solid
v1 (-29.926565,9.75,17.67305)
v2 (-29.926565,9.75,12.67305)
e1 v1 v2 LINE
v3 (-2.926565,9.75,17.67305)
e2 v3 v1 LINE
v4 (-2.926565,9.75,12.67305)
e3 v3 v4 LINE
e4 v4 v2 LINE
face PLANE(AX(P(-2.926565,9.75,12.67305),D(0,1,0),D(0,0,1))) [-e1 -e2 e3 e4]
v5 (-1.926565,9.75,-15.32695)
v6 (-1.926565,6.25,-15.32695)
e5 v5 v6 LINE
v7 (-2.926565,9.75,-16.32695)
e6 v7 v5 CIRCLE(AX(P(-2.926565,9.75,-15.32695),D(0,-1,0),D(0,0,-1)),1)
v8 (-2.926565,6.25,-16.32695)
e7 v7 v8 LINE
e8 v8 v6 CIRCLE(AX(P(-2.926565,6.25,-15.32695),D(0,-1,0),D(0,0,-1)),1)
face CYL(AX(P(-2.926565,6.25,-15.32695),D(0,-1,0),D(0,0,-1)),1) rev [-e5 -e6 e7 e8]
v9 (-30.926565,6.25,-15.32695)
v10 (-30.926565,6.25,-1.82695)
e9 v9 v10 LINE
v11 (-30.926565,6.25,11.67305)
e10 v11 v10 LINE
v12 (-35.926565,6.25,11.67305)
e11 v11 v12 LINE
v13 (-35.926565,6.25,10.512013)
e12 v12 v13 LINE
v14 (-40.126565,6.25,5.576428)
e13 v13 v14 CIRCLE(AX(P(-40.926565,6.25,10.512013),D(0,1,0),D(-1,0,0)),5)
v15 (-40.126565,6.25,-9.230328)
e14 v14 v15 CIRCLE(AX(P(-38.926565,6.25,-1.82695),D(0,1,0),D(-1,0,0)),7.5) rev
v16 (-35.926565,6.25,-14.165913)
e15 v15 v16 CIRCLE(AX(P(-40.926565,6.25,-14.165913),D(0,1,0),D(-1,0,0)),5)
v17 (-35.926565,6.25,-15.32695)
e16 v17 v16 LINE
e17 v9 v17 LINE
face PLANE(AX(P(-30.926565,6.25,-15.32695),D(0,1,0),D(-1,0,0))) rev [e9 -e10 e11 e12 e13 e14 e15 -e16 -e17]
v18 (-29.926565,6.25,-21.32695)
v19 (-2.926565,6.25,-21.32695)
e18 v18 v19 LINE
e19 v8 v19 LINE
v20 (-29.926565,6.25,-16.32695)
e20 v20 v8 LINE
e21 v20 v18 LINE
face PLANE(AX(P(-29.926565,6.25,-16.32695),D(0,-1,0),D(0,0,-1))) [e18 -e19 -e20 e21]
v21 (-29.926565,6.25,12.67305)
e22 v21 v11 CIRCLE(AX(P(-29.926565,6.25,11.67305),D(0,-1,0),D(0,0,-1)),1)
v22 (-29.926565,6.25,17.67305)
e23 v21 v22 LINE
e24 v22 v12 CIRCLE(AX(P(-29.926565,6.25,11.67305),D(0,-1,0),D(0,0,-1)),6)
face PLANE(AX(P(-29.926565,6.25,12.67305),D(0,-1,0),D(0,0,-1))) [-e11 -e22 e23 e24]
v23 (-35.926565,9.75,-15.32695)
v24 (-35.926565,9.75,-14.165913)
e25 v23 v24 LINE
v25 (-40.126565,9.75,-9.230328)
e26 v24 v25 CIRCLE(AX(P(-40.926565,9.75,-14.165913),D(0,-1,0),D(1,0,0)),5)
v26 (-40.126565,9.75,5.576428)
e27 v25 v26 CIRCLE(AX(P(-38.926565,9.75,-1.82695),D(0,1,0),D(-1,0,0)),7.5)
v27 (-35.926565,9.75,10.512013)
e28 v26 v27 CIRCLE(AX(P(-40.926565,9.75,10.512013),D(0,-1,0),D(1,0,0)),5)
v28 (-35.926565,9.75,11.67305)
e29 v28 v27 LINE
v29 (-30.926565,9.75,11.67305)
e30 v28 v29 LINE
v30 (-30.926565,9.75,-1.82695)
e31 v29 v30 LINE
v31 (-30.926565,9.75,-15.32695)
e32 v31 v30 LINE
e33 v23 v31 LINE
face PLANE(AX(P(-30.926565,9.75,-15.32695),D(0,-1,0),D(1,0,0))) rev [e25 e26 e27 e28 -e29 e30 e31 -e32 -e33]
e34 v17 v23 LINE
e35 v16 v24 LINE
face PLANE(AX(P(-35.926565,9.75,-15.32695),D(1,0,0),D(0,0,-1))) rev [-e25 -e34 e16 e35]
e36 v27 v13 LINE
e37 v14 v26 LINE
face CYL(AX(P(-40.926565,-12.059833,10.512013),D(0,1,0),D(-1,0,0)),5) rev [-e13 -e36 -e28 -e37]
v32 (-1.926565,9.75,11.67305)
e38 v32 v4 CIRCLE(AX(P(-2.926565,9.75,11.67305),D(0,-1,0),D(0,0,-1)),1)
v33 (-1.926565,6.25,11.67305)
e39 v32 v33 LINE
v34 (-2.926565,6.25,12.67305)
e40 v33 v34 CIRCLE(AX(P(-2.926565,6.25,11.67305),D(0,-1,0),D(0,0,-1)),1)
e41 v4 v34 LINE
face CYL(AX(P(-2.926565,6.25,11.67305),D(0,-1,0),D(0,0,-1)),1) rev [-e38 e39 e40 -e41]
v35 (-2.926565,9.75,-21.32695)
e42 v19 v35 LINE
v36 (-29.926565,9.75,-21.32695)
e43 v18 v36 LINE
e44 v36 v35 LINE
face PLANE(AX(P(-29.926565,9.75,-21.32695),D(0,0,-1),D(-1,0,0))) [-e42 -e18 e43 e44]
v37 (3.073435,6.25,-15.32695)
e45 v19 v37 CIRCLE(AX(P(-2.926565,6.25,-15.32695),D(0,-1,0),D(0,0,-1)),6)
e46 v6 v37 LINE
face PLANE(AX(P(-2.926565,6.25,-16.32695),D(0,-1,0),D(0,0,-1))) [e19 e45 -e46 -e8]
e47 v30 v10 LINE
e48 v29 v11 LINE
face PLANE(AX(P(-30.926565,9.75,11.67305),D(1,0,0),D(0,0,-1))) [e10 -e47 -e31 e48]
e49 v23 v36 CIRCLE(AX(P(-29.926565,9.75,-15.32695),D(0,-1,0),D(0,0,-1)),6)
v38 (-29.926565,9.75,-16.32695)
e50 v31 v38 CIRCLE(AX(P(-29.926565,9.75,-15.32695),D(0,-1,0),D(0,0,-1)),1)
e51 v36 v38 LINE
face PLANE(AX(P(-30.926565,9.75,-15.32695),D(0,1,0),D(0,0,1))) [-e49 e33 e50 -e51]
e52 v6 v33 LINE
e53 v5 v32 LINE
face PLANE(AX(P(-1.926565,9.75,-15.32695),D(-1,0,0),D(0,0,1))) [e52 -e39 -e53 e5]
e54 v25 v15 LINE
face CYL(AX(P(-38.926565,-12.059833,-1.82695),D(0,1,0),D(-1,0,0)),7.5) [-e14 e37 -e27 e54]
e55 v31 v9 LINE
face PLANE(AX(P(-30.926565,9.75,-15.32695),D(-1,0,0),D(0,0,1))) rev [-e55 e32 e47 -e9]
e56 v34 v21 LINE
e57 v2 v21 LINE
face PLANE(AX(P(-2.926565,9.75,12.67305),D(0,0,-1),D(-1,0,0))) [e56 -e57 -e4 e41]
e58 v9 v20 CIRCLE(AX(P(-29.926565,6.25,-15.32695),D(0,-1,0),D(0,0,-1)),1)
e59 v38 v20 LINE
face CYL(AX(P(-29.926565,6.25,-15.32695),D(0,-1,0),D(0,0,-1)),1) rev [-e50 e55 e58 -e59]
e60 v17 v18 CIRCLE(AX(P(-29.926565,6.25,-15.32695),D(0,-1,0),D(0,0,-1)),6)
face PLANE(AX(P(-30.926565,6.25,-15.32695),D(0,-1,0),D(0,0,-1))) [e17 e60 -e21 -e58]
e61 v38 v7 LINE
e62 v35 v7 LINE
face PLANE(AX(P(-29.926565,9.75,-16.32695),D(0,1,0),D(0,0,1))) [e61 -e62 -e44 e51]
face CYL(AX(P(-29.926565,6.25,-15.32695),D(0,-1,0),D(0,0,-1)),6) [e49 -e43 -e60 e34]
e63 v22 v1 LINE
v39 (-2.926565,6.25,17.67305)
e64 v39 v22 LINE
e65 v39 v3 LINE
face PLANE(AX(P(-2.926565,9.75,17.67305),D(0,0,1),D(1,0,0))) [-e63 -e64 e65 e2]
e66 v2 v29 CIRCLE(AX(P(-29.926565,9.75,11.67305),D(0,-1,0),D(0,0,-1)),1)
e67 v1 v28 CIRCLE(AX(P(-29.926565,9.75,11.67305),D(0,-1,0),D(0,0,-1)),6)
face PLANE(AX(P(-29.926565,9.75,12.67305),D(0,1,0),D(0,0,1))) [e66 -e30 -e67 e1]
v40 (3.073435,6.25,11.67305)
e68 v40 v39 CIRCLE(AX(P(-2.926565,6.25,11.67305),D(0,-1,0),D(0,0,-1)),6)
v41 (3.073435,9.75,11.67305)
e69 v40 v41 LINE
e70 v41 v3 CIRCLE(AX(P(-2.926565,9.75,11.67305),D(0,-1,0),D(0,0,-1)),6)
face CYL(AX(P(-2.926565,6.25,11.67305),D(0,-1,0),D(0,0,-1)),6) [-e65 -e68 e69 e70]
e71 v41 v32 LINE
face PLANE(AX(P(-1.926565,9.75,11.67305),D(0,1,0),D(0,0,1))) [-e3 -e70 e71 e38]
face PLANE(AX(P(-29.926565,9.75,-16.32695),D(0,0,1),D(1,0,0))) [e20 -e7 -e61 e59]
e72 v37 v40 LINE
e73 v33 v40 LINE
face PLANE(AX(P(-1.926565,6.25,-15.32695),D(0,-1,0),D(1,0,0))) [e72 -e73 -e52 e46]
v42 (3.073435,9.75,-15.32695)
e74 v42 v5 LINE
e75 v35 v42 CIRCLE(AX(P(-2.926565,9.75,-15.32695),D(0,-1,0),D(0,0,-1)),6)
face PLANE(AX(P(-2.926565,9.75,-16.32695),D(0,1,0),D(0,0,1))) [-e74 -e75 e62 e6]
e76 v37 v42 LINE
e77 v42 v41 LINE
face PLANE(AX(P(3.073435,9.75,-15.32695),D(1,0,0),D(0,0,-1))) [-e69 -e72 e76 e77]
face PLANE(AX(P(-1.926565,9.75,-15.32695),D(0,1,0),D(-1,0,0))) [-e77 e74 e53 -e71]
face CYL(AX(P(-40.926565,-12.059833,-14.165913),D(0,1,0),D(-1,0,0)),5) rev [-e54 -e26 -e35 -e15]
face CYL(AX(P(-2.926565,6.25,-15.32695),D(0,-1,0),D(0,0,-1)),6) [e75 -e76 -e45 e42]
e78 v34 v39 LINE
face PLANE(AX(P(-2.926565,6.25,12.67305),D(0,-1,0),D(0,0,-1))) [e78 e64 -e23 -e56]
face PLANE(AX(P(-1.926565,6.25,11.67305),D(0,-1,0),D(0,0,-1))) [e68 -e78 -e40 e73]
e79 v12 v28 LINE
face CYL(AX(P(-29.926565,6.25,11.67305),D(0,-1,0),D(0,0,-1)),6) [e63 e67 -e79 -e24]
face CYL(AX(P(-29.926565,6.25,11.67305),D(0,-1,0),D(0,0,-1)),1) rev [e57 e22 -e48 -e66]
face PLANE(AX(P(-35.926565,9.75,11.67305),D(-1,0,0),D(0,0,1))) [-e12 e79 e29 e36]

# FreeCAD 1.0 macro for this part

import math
import FreeCAD as App
import Part
import Sketcher

V = App.Vector
Q = App.Units.Quantity


def edges_at(feature, points):
    """Names of the edges that pass closest to the given points."""
    edges = feature.Shape.Edges
    near = lambda p: min(range(len(edges)), key=lambda i: edges[i].distToShape(Part.Vertex(*p))[0])
    return sorted({f"Edge{near(p) + 1}" for p in points})


def add_polygon(sketch, points):
    """Adds a closed chain of lines whose ends are joined by coincident constraints."""
    first, n = sketch.GeometryCount, len(points)
    for a, b in zip(points, points[1:] + points[:1]):
        sketch.addGeometry(Part.LineSegment(App.Vector(*a, 0), App.Vector(*b, 0)), False)
    for i in range(n):
        sketch.addConstraint(Sketcher.Constraint("Coincident", first + i, 2, first + (i + 1) % n, 1))

doc = App.newDocument("Part")
body = doc.addObject("PartDesign::Body", "Body")

# Sketch on XY plane
sketch1 = doc.addObject("Sketcher::SketchObject", "Sketch")
body.addObject(sketch1)
sketch1.AttachmentSupport = (doc.XY_Plane, [""])
sketch1.MapMode = "FlatFace"
sketch1.AttachmentOffset = App.Placement(V(0, 0, -1.82695), App.Rotation())
add_polygon(sketch1, [(-35.9, 6.2), (-35.9, 9.8), (-30.9, 9.8), (-30.9, 6.2)])  # lines 0-3
sketch1.addConstraint([
    Sketcher.Constraint("Vertical", 0),
    Sketcher.Constraint("Horizontal", 1),
    Sketcher.Constraint("Vertical", 2),
    Sketcher.Constraint("Horizontal", 3),
    Sketcher.Constraint("DistanceX", 1, 1, 1, 2, Q("5 mm")),
    Sketcher.Constraint("DistanceY", 0, 1, 0, 2, Q("3.5 mm")),
    Sketcher.Constraint("DistanceY", -1, 1, 0, 2, Q("9.75 mm")),
    Sketcher.Constraint("DistanceX", 0, 2, -1, 1, Q("35.926565 mm")),
])

# Sketch on XZ plane
sketch2 = doc.addObject("Sketcher::SketchObject", "Sketch001")
body.addObject(sketch2)
sketch2.AttachmentSupport = (doc.XZ_Plane, [""])
sketch2.MapMode = "FlatFace"
sketch2.AttachmentOffset = App.Placement(V(0, 0, -6.25), App.Rotation())
sketch2.addGeometry([
    Part.LineSegment(V(-30.9, -15.3, 0), V(-30.9, 11.7, 0)),  # 0
    Part.ArcOfCircle(Part.Circle(V(-29.9, 11.7, 0), V(0, 0, 1), 1), math.radians(90), math.radians(180)),  # 1
    Part.LineSegment(V(-29.9, 12.7, 0), V(-2.9, 12.7, 0)),  # 2
    Part.ArcOfCircle(Part.Circle(V(-2.9, 11.7, 0), V(0, 0, 1), 1), math.radians(0), math.radians(90)),  # 3
    Part.LineSegment(V(-1.9, 11.7, 0), V(-1.9, -15.3, 0)),  # 4
    Part.ArcOfCircle(Part.Circle(V(-2.9, -15.3, 0), V(0, 0, 1), 1), math.radians(-90), math.radians(0)),  # 5
    Part.LineSegment(V(-2.9, -16.3, 0), V(-29.9, -16.3, 0)),  # 6
    Part.ArcOfCircle(Part.Circle(V(-29.9, -15.3, 0), V(0, 0, 1), 1), math.radians(-180), math.radians(-90)),  # 7
], False)
sketch2.addConstraint([
    Sketcher.Constraint("Tangent", 0, 2, 1, 2),
    Sketcher.Constraint("Tangent", 1, 1, 2, 1),
    Sketcher.Constraint("Tangent", 2, 2, 3, 2),
    Sketcher.Constraint("Tangent", 3, 1, 4, 1),
    Sketcher.Constraint("Tangent", 4, 2, 5, 2),
    Sketcher.Constraint("Tangent", 5, 1, 6, 1),
    Sketcher.Constraint("Tangent", 6, 2, 7, 2),
    Sketcher.Constraint("Tangent", 7, 1, 0, 1),
    Sketcher.Constraint("Vertical", 0),
    Sketcher.Constraint("Horizontal", 2),
    Sketcher.Constraint("Vertical", 4),
    Sketcher.Constraint("Horizontal", 6),
    Sketcher.Constraint("Equal", 1, 3),
    Sketcher.Constraint("Equal", 3, 5),
    Sketcher.Constraint("Equal", 5, 7),
    Sketcher.Constraint("Equal", 6, 0),
    Sketcher.Constraint("Radius", 1, Q("1 mm")),
    Sketcher.Constraint("DistanceX", 2, 1, 2, 2, Q("27 mm")),
    Sketcher.Constraint("DistanceY", -1, 1, 1, 3, Q("11.67305 mm")),
    Sketcher.Constraint("DistanceX", 1, 3, -1, 1, Q("29.926565 mm")),
])
doc.recompute()

additivepipe = doc.addObject("PartDesign::AdditivePipe", "AdditivePipe")
body.addObject(additivepipe)
additivepipe.Profile = sketch1
additivepipe.Spine = (sketch2, ["Edge1", "Edge2", "Edge3", "Edge4", "Edge5", "Edge6", "Edge7", "Edge8"])

# Sketch on XZ plane
sketch3 = doc.addObject("Sketcher::SketchObject", "Sketch002")
body.addObject(sketch3)
sketch3.AttachmentSupport = (doc.XZ_Plane, [""])
sketch3.MapMode = "FlatFace"
sketch3.AttachmentOffset = App.Placement(V(0, 0, -9.75), App.Rotation())
sketch3.addGeometry([
    Part.LineSegment(V(-35.9, -9.3, 0), V(-38.9, -9.3, 0)),
    Part.ArcOfCircle(Part.Circle(V(-38.9, -1.8, 0), V(0, 0, 1), 7.5), math.radians(90), math.radians(270)),
    Part.LineSegment(V(-38.9, 5.7, 0), V(-35.9, 5.7, 0)),
    Part.LineSegment(V(-35.9, 5.7, 0), V(-35.9, -9.3, 0)),
], False)
sketch3.addConstraint([
    Sketcher.Constraint("Tangent", 0, 2, 1, 2),
    Sketcher.Constraint("Tangent", 1, 1, 2, 1),
    Sketcher.Constraint("Coincident", 2, 2, 3, 1),
    Sketcher.Constraint("Coincident", 3, 2, 0, 1),
    Sketcher.Constraint("Horizontal", 0),
    Sketcher.Constraint("Horizontal", 2),
    Sketcher.Constraint("Vertical", 3),
    Sketcher.Constraint("Radius", 1, Q("7.5 mm")),
    Sketcher.Constraint("DistanceX", 0, 2, 0, 1, Q("3 mm")),
    Sketcher.Constraint("DistanceY", 1, 3, -1, 1, Q("1.82695 mm")),
    Sketcher.Constraint("DistanceX", 1, 3, -1, 1, Q("38.926565 mm")),
])
pad1 = doc.addObject("PartDesign::Pad", "Pad")
body.addObject(pad1)
pad1.Profile = sketch3
pad1.Length = 3.5
doc.recompute()

fillet = doc.addObject("PartDesign::Fillet", "Fillet")
body.addObject(fillet)
fillet.Base = (pad1, edges_at(pad1, [(-35.927, 8, -9.327), (-35.927, 8, 5.673)]))
fillet.Radius = 5

doc.recompute()
